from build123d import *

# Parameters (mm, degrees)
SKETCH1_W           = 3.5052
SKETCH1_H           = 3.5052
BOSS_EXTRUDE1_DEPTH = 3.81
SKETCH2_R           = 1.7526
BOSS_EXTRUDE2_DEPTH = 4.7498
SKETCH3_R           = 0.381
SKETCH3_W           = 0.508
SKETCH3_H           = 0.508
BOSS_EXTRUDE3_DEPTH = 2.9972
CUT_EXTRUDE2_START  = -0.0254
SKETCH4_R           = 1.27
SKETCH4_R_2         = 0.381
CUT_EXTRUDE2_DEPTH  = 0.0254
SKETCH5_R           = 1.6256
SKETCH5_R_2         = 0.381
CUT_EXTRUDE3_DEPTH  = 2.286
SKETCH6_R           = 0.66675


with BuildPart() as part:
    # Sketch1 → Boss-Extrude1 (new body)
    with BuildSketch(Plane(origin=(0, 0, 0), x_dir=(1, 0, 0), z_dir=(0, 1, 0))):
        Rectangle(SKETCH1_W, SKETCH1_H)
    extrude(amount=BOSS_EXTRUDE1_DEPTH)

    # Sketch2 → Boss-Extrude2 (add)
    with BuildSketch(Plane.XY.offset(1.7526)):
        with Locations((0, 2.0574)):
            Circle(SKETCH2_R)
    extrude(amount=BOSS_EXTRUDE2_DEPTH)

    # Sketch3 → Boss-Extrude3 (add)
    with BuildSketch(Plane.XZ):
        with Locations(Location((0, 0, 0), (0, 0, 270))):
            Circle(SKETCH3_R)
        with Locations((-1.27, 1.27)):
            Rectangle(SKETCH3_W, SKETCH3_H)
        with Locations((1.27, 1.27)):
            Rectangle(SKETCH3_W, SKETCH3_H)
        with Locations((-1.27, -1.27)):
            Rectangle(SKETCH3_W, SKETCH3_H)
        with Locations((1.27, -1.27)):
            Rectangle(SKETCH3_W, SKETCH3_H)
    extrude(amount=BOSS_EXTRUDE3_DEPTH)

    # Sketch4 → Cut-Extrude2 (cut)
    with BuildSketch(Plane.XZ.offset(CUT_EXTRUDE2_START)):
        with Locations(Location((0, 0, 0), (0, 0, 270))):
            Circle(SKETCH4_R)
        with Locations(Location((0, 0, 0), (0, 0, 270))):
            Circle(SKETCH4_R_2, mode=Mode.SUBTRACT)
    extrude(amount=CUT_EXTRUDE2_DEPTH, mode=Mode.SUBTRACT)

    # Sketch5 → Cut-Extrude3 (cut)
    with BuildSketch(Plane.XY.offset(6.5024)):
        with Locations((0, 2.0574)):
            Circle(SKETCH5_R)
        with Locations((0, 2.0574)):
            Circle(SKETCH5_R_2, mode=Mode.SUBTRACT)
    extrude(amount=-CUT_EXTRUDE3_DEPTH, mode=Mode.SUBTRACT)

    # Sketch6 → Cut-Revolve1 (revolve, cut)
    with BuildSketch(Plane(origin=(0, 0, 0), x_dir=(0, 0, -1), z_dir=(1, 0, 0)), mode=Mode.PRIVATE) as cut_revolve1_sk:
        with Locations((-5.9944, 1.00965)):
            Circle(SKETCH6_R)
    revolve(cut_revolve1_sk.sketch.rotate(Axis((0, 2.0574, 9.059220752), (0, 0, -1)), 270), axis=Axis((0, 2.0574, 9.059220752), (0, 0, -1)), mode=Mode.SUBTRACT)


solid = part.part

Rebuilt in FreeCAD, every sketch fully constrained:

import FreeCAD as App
import Part
import Sketcher
Q = App.Units.Quantity

doc = App.newDocument("Part")
body = doc.addObject("PartDesign::Body", "Body")

sketch1 = body.newObject("Sketcher::SketchObject", "Sketch")
sketch1.AttachmentSupport = (doc.getObject("XZ_Plane"), [""])
sketch1.MapMode = "FlatFace"
sketch1.addGeometry(Part.LineSegment(App.Vector(-1.8, -1.8, 0), App.Vector(-1.8, 1.8, 0)), False)
sketch1.addGeometry(Part.LineSegment(App.Vector(-1.8, 1.8, 0), App.Vector(1.8, 1.8, 0)), False)
sketch1.addGeometry(Part.LineSegment(App.Vector(1.8, 1.8, 0), App.Vector(1.8, -1.8, 0)), False)
sketch1.addGeometry(Part.LineSegment(App.Vector(1.8, -1.8, 0), App.Vector(-1.8, -1.8, 0)), False)
sketch1.addConstraint(Sketcher.Constraint("Coincident", 0, 2, 1, 1))
sketch1.addConstraint(Sketcher.Constraint("Coincident", 1, 2, 2, 1))
sketch1.addConstraint(Sketcher.Constraint("Coincident", 2, 2, 3, 1))
sketch1.addConstraint(Sketcher.Constraint("Coincident", 3, 2, 0, 1))
sketch1.addConstraint(Sketcher.Constraint("Vertical", 0))
sketch1.addConstraint(Sketcher.Constraint("Horizontal", 1))
sketch1.addConstraint(Sketcher.Constraint("Vertical", 2))
sketch1.addConstraint(Sketcher.Constraint("Horizontal", 3))
sketch1.addConstraint(Sketcher.Constraint("Symmetric", 0, 2, 2, 2, -1, 1))
sketch1.addConstraint(Sketcher.Constraint("Equal", 3, 0))
sketch1.addConstraint(Sketcher.Constraint("DistanceX", 1, 1, 1, 2, Q("0.138 in")))
pad1 = body.newObject("PartDesign::Pad", "Pad")
pad1.Profile = sketch1
pad1.Length = Q("0.15 in")
pad1.Reversed = True

sketch2 = body.newObject("Sketcher::SketchObject", "Sketch001")
sketch2.AttachmentSupport = (doc.getObject("XY_Plane"), [""])
sketch2.MapMode = "FlatFace"
sketch2.AttachmentOffset = App.Placement(App.Vector(0, 0, 0.069 * 25.4), App.Rotation())
sketch2.addGeometry(Part.Circle(App.Vector(0, 2.1, 0), App.Vector(0, 0, 1), 1.8), False)
sketch2.addConstraint(Sketcher.Constraint("PointOnObject", 0, 3, -2))
sketch2.addConstraint(Sketcher.Constraint("Diameter", 0, Q("0.138 in")))
sketch2.addConstraint(Sketcher.Constraint("DistanceY", -1, 1, 0, 3, Q("0.081 in")))
pad2 = body.newObject("PartDesign::Pad", "Pad001")
pad2.Profile = sketch2
pad2.Length = Q("0.187 in")

sketch3 = body.newObject("Sketcher::SketchObject", "Sketch002")
sketch3.AttachmentSupport = (doc.getObject("XZ_Plane"), [""])
sketch3.MapMode = "FlatFace"
sketch3.addGeometry(Part.Circle(App.Vector(0, 0, 0), App.Vector(0, 0, 1), 0.38), False)
sketch3.addGeometry(Part.LineSegment(App.Vector(-1.52, 1.52, 0), App.Vector(-1.52, 1.02, 0)), False)
sketch3.addGeometry(Part.LineSegment(App.Vector(-1.52, 1.02, 0), App.Vector(-1.02, 1.02, 0)), False)
sketch3.addGeometry(Part.LineSegment(App.Vector(-1.02, 1.02, 0), App.Vector(-1.02, 1.52, 0)), False)
sketch3.addGeometry(Part.LineSegment(App.Vector(-1.02, 1.52, 0), App.Vector(-1.52, 1.52, 0)), False)
sketch3.addGeometry(Part.LineSegment(App.Vector(1.02, 1.52, 0), App.Vector(1.02, 1.02, 0)), False)
sketch3.addGeometry(Part.LineSegment(App.Vector(1.02, 1.02, 0), App.Vector(1.52, 1.02, 0)), False)
sketch3.addGeometry(Part.LineSegment(App.Vector(1.52, 1.02, 0), App.Vector(1.52, 1.52, 0)), False)
sketch3.addGeometry(Part.LineSegment(App.Vector(1.52, 1.52, 0), App.Vector(1.02, 1.52, 0)), False)
sketch3.addGeometry(Part.LineSegment(App.Vector(-1.52, -1.02, 0), App.Vector(-1.52, -1.52, 0)), False)
sketch3.addGeometry(Part.LineSegment(App.Vector(-1.52, -1.52, 0), App.Vector(-1.02, -1.52, 0)), False)
sketch3.addGeometry(Part.LineSegment(App.Vector(-1.02, -1.52, 0), App.Vector(-1.02, -1.02, 0)), False)
sketch3.addGeometry(Part.LineSegment(App.Vector(-1.02, -1.02, 0), App.Vector(-1.52, -1.02, 0)), False)
sketch3.addGeometry(Part.LineSegment(App.Vector(1.02, -1.02, 0), App.Vector(1.02, -1.52, 0)), False)
sketch3.addGeometry(Part.LineSegment(App.Vector(1.02, -1.52, 0), App.Vector(1.52, -1.52, 0)), False)
sketch3.addGeometry(Part.LineSegment(App.Vector(1.52, -1.52, 0), App.Vector(1.52, -1.02, 0)), False)
sketch3.addGeometry(Part.LineSegment(App.Vector(1.52, -1.02, 0), App.Vector(1.02, -1.02, 0)), False)
sketch3.addConstraint(Sketcher.Constraint("Coincident", 1, 2, 2, 1))
sketch3.addConstraint(Sketcher.Constraint("Coincident", 2, 2, 3, 1))
sketch3.addConstraint(Sketcher.Constraint("Coincident", 3, 2, 4, 1))
sketch3.addConstraint(Sketcher.Constraint("Coincident", 4, 2, 1, 1))
sketch3.addConstraint(Sketcher.Constraint("Coincident", 5, 2, 6, 1))
sketch3.addConstraint(Sketcher.Constraint("Coincident", 6, 2, 7, 1))
sketch3.addConstraint(Sketcher.Constraint("Coincident", 7, 2, 8, 1))
sketch3.addConstraint(Sketcher.Constraint("Coincident", 8, 2, 5, 1))
sketch3.addConstraint(Sketcher.Constraint("Coincident", 9, 2, 10, 1))
sketch3.addConstraint(Sketcher.Constraint("Coincident", 10, 2, 11, 1))
sketch3.addConstraint(Sketcher.Constraint("Coincident", 11, 2, 12, 1))
sketch3.addConstraint(Sketcher.Constraint("Coincident", 12, 2, 9, 1))
sketch3.addConstraint(Sketcher.Constraint("Coincident", 13, 2, 14, 1))
sketch3.addConstraint(Sketcher.Constraint("Coincident", 14, 2, 15, 1))
sketch3.addConstraint(Sketcher.Constraint("Coincident", 15, 2, 16, 1))
sketch3.addConstraint(Sketcher.Constraint("Coincident", 16, 2, 13, 1))
sketch3.addConstraint(Sketcher.Constraint("Vertical", 1))
sketch3.addConstraint(Sketcher.Constraint("Horizontal", 2))
sketch3.addConstraint(Sketcher.Constraint("Vertical", 3))
sketch3.addConstraint(Sketcher.Constraint("Horizontal", 4))
sketch3.addConstraint(Sketcher.Constraint("Vertical", 5))
sketch3.addConstraint(Sketcher.Constraint("Horizontal", 6))
sketch3.addConstraint(Sketcher.Constraint("Vertical", 7))
sketch3.addConstraint(Sketcher.Constraint("Horizontal", 8))
sketch3.addConstraint(Sketcher.Constraint("Vertical", 9))
sketch3.addConstraint(Sketcher.Constraint("Horizontal", 10))
sketch3.addConstraint(Sketcher.Constraint("Vertical", 11))
sketch3.addConstraint(Sketcher.Constraint("Horizontal", 12))
sketch3.addConstraint(Sketcher.Constraint("Vertical", 13))
sketch3.addConstraint(Sketcher.Constraint("Horizontal", 14))
sketch3.addConstraint(Sketcher.Constraint("Vertical", 15))
sketch3.addConstraint(Sketcher.Constraint("Horizontal", 16))
sketch3.addConstraint(Sketcher.Constraint("Coincident", 0, 3, -1, 1))
sketch3.addConstraint(Sketcher.Constraint("Symmetric", 7, 2, 9, 2, -1, 1))
sketch3.addConstraint(Sketcher.Constraint("Symmetric", 5, 2, 11, 2, -1, 1))
sketch3.addConstraint(Sketcher.Constraint("Symmetric", 3, 2, 13, 2, -1, 1))
sketch3.addConstraint(Sketcher.Constraint("Symmetric", 1, 2, 15, 2, -1, 1))
sketch3.addConstraint(Sketcher.Constraint("Symmetric", 2, 2, 5, 2, -2))
sketch3.addConstraint(Sketcher.Constraint("Symmetric", 4, 2, 7, 2, -2))
sketch3.addConstraint(Sketcher.Constraint("Equal", 16, 1))
sketch3.addConstraint(Sketcher.Constraint("Diameter", 0, Q("0.03 in")))
sketch3.addConstraint(Sketcher.Constraint("DistanceX", 2, 1, 2, 2, Q("0.02 in")))
sketch3.addConstraint(Sketcher.Constraint("DistanceX", 1, 2, 5, 2, Q("0.1 in")))
sketch3.addConstraint(Sketcher.Constraint("DistanceY", 9, 2, 1, 2, Q("0.1 in")))
pad3 = body.newObject("PartDesign::Pad", "Pad002")
pad3.Profile = sketch3
pad3.Length = Q("0.118 in")

sketch4 = body.newObject("Sketcher::SketchObject", "Sketch003")
sketch4.AttachmentSupport = (doc.getObject("XZ_Plane"), [""])
sketch4.MapMode = "FlatFace"
sketch4.AttachmentOffset = App.Placement(App.Vector(0, 0, -0.001 * 25.4), App.Rotation())
sketch4.addGeometry(Part.Circle(App.Vector(0, 0, 0), App.Vector(0, 0, 1), 1.27), False)
sketch4.addGeometry(Part.Circle(App.Vector(0, 0, 0), App.Vector(0, 0, 1), 0.38), False)
sketch4.addConstraint(Sketcher.Constraint("Coincident", 0, 3, -1, 1))
sketch4.addConstraint(Sketcher.Constraint("Coincident", 1, 3, -1, 1))
sketch4.addConstraint(Sketcher.Constraint("Diameter", 0, Q("0.1 in")))
sketch4.addConstraint(Sketcher.Constraint("Diameter", 1, Q("0.03 in")))
pocket1 = body.newObject("PartDesign::Pocket", "Pocket")
pocket1.Profile = sketch4
pocket1.Length = Q("0.001 in")
pocket1.Reversed = True

sketch5 = body.newObject("Sketcher::SketchObject", "Sketch004")
sketch5.AttachmentSupport = (doc.getObject("XY_Plane"), [""])
sketch5.MapMode = "FlatFace"
sketch5.AttachmentOffset = App.Placement(App.Vector(0, 0, 0.256 * 25.4), App.Rotation())
sketch5.addGeometry(Part.Circle(App.Vector(0, 2.06, 0), App.Vector(0, 0, 1), 1.63), False)
sketch5.addGeometry(Part.Circle(App.Vector(0, 2.06, 0), App.Vector(0, 0, 1), 0.38), False)
sketch5.addConstraint(Sketcher.Constraint("Coincident", 1, 3, 0, 3))
sketch5.addConstraint(Sketcher.Constraint("PointOnObject", 0, 3, -2))
sketch5.addConstraint(Sketcher.Constraint("Diameter", 1, Q("0.03 in")))
sketch5.addConstraint(Sketcher.Constraint("Diameter", 0, Q("0.128 in")))
sketch5.addConstraint(Sketcher.Constraint("DistanceY", -1, 1, 0, 3, Q("0.081 in")))
pocket2 = body.newObject("PartDesign::Pocket", "Pocket001")
pocket2.Profile = sketch5
pocket2.Length = Q("0.09 in")

sketch6 = body.newObject("Sketcher::SketchObject", "Sketch005")
sketch6.AttachmentSupport = (doc.getObject("YZ_Plane"), [""])
sketch6.MapMode = "FlatFace"
sketch6.addGeometry(Part.Circle(App.Vector(1, 6, 0), App.Vector(0, 0, 1), 0.7), False)
sketch6.addGeometry(Part.LineSegment(App.Vector(2.1, 6, 0), App.Vector(2.1, -4, 0)), True)
sketch6.addConstraint(Sketcher.Constraint("Vertical", 1))
sketch6.addConstraint(Sketcher.Constraint("Horizontal", 0, 3, 1, 1))
sketch6.addConstraint(Sketcher.Constraint("Diameter", 0, Q("0.0525 in")))
sketch6.addConstraint(Sketcher.Constraint("DistanceY", -1, 1, 0, 3, Q("0.236 in")))
sketch6.addConstraint(Sketcher.Constraint("DistanceX", -1, 1, 1, 1, Q("0.081 in")))
sketch6.addConstraint(Sketcher.Constraint("DistanceY", 1, 2, 1, 1, 10.0))
sketch6.addConstraint(Sketcher.Constraint("DistanceX", -1, 1, 0, 3, 1.00965))
groove = body.newObject("PartDesign::Groove", "Groove")
groove.Profile = sketch6
groove.ReferenceAxis = (sketch6, ["Axis0"])
groove.Angle = 360

doc.recompute()
